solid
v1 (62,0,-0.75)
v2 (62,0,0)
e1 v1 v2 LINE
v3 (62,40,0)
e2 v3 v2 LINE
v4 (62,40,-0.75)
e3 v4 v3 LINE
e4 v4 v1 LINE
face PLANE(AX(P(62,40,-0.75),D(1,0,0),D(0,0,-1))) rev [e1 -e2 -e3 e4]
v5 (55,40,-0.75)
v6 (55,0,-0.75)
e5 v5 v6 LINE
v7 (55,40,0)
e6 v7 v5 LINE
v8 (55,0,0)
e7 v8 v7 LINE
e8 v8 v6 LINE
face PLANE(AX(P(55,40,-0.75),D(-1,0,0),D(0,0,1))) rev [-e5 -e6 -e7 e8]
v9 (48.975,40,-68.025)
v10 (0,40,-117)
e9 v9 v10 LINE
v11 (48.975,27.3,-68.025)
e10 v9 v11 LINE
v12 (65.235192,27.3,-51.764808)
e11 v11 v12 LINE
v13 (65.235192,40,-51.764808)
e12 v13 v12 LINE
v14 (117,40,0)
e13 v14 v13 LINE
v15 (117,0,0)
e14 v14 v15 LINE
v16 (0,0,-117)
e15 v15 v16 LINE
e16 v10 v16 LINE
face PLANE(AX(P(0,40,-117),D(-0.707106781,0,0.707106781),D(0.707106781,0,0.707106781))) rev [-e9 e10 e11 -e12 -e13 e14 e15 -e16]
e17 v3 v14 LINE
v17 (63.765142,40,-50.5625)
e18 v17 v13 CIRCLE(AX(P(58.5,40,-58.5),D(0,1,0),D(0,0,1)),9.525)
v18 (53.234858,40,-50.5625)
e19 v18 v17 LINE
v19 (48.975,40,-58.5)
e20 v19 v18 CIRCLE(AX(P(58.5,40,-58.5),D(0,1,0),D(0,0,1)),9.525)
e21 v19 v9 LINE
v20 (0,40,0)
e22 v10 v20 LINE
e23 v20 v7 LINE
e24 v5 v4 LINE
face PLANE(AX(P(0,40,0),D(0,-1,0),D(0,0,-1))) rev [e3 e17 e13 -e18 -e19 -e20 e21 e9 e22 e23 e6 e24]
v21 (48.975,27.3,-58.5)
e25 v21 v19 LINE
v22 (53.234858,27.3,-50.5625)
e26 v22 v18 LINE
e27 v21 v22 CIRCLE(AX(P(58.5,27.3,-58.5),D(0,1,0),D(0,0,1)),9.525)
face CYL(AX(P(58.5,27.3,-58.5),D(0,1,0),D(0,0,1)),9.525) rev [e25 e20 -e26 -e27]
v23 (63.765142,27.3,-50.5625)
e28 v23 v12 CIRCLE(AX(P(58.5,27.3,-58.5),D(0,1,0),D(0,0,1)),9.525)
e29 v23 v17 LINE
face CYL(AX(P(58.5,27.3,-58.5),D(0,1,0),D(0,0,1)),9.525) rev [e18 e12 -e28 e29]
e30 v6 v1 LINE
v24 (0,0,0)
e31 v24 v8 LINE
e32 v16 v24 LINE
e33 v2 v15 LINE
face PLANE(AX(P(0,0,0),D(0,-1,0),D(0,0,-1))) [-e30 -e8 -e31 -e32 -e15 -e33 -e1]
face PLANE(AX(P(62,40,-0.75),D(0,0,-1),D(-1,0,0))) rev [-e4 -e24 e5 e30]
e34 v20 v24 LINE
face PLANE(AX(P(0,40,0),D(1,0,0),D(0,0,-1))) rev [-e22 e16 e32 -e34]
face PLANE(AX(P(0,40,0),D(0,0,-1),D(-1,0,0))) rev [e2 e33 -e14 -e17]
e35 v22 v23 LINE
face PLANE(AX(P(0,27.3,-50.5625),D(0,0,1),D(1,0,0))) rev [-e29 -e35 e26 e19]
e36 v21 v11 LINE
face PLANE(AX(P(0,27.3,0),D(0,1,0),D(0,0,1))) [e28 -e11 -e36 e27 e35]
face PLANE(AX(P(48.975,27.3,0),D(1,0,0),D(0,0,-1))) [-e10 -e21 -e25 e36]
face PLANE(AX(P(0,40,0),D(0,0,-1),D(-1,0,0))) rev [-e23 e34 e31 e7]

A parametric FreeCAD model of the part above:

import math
import FreeCAD as App
import Part
import Sketcher
from FreeCAD import Vector
Q = App.Units.Quantity


def add_polygon(sketch, points):
    """Adds a closed chain of lines whose ends are joined by coincident constraints."""
    first, n = sketch.GeometryCount, len(points)
    for a, b in zip(points, points[1:] + points[:1]):
        sketch.addGeometry(Part.LineSegment(App.Vector(*a, 0), App.Vector(*b, 0)), False)
    for i in range(n):
        sketch.addConstraint(Sketcher.Constraint("Coincident", first + i, 2, first + (i + 1) % n, 1))

doc = App.newDocument("Part")
params = doc.addObject("Spreadsheet::Sheet", "Params")
for row, (alias, value) in enumerate([
    ("sketch1_width", "117 mm"),
    ("pad1_length", "40 mm"),
    ("pocket1_length", "12.7 mm"),
    ("sketch3_width", "7 mm"),
    ("sketch3_height", "1.5 mm"),
], start=1):
    params.set(f"A{row}", alias)
    params.set(f"B{row}", "=" + value)
    params.setAlias(f"B{row}", alias)

body = doc.addObject("PartDesign::Body", "Body")

sketch1 = body.newObject("Sketcher::SketchObject", "Sketch")
sketch1.AttachmentSupport = (doc.getObject("XZ_Plane"), [""])
sketch1.MapMode = "FlatFace"
add_polygon(sketch1, [(0, -117), (0, 0), (117, 0), (117, -117)])
sketch1.addConstraint([
    Sketcher.Constraint("Vertical", 0),
    Sketcher.Constraint("Horizontal", 1),
    Sketcher.Constraint("Vertical", 2),
    Sketcher.Constraint("Horizontal", 3),
    Sketcher.Constraint("Coincident", 0, 2, -1, 1),
    Sketcher.Constraint("Equal", 3, 0),
    Sketcher.Constraint("DistanceX", 1, 1, 1, 2, Q("117 mm")),
])
sketch1.setExpression("Constraints[10]", "Params.sketch1_width")
pad1 = body.newObject("PartDesign::Pad", "Pad")
pad1.Profile = sketch1
pad1.setExpression("Length", "Params.pad1_length")
pad1.Reversed = True

sketch2 = body.newObject("Sketcher::SketchObject", "Sketch001")
sketch2.AttachmentSupport = (doc.getObject("XZ_Plane"), [""])
sketch2.MapMode = "FlatFace"
sketch2.AttachmentOffset = App.Placement(Vector(0, 0, -40), App.Rotation())
sketch2.addGeometry([
    Part.ArcOfCircle(Part.Circle(Vector(58, -59, 0), Vector(0, 0, 1), 10), math.radians(0), math.radians(56)),
    Part.LineSegment(Vector(68, -58, 0), Vector(68, -74, 0)),
    Part.LineSegment(Vector(68, -74, 0), Vector(49, -74, 0)),
    Part.LineSegment(Vector(49, -74, 0), Vector(49, -58, 0)),
    Part.ArcOfCircle(Part.Circle(Vector(59, -59, 0), Vector(0, 0, 1), 10), math.radians(124), math.radians(180)),
    Part.LineSegment(Vector(53, -51, 0), Vector(64, -51, 0)),
], False)
sketch2.addConstraint([
    Sketcher.Constraint("Tangent", 0, 1, 1, 1),
    Sketcher.Constraint("Coincident", 1, 2, 2, 1),
    Sketcher.Constraint("Coincident", 2, 2, 3, 1),
    Sketcher.Constraint("Tangent", 3, 2, 4, 2),
    Sketcher.Constraint("Coincident", 4, 1, 5, 1),
    Sketcher.Constraint("Coincident", 5, 2, 0, 2),
    Sketcher.Constraint("Vertical", 1),
    Sketcher.Constraint("Horizontal", 2),
    Sketcher.Constraint("Vertical", 3),
    Sketcher.Constraint("Horizontal", 5),
    Sketcher.Constraint("Coincident", 4, 3, 0, 3),
    Sketcher.Constraint("Equal", 0, 4),
    Sketcher.Constraint("Radius", 0, Q("9.525 mm")),
    Sketcher.Constraint("DistanceX", -1, 1, 0, 3, Q("58.5 mm")),
    Sketcher.Constraint("DistanceY", 0, 3, -1, 1, Q("58.5 mm")),
    Sketcher.Constraint("DistanceY", 1, 2, 1, 1, Q("15.875 mm")),
    Sketcher.Constraint("DistanceY", 4, 1, -1, 1, Q("50.5625 mm")),
])
pocket1 = body.newObject("PartDesign::Pocket", "Pocket")
pocket1.Profile = sketch2
pocket1.setExpression("Length", "Params.pocket1_length")
pocket1.Reversed = True

sketch3 = body.newObject("Sketcher::SketchObject", "Sketch002")
sketch3.AttachmentSupport = (doc.getObject("XZ_Plane"), [""])
sketch3.MapMode = "FlatFace"
add_polygon(sketch3, [(55, -116.2), (55, -117.8), (62, -117.8), (62, -116.2)])
sketch3.addConstraint([
    Sketcher.Constraint("Vertical", 0),
    Sketcher.Constraint("Horizontal", 1),
    Sketcher.Constraint("Vertical", 2),
    Sketcher.Constraint("Horizontal", 3),
    Sketcher.Constraint("DistanceX", 1, 1, 1, 2, Q("7 mm")),
    Sketcher.Constraint("DistanceY", 0, 2, 0, 1, Q("1.5 mm")),
    Sketcher.Constraint("DistanceX", -1, 1, 0, 2, Q("55 mm")),
    Sketcher.Constraint("DistanceY", 0, 2, -1, 1, Q("117.75 mm")),
])
sketch3.setExpression("Constraints[8]", "Params.sketch3_width")
sketch3.setExpression("Constraints[9]", "Params.sketch3_height")
pocket2 = body.newObject("PartDesign::Pocket", "Pocket001")
pocket2.Profile = sketch3
pocket2.Type = "ThroughAll"
doc.recompute()

datumline = body.newObject("PartDesign::Line", "DatumLine")
datumline.Placement = App.Placement(Vector(58.5, 0, -58.5), App.Rotation(Vector(0, 0, 1), Vector(0, -1, 0)))
polarpattern = body.newObject("PartDesign::PolarPattern", "PolarPattern")
polarpattern.Originals = [pocket2]
polarpattern.Axis = (datumline, [""])
polarpattern.Angle = 180
polarpattern.Occurrences = 3
body.Tip = polarpattern

sketch4 = body.newObject("Sketcher::SketchObject", "Sketch003")
sketch4.AttachmentSupport = (doc.getObject("XZ_Plane"), [""])
sketch4.MapMode = "FlatFace"
add_polygon(sketch4, [(117, 0), (0, -117), (72, -189), (189, -72)])
sketch4.addConstraint([
    Sketcher.Constraint("PointOnObject", 0, 2, -2),
    Sketcher.Constraint("PointOnObject", 3, 2, -1),
    Sketcher.Constraint("Perpendicular", 0, 1),
    Sketcher.Constraint("Perpendicular", 1, 2),
    Sketcher.Constraint("Perpendicular", 2, 3),
    Sketcher.Constraint("Angle", 0, Q("-135 deg")),
    Sketcher.Constraint("DistanceY", 0, 2, -1, 1, Q("117 mm")),
    Sketcher.Constraint("Distance", 1, Q("101.314648 mm")),
])
pocket3 = body.newObject("PartDesign::Pocket", "Pocket002")
pocket3.Profile = sketch4
pocket3.Type = "ThroughAll"

doc.recompute()
